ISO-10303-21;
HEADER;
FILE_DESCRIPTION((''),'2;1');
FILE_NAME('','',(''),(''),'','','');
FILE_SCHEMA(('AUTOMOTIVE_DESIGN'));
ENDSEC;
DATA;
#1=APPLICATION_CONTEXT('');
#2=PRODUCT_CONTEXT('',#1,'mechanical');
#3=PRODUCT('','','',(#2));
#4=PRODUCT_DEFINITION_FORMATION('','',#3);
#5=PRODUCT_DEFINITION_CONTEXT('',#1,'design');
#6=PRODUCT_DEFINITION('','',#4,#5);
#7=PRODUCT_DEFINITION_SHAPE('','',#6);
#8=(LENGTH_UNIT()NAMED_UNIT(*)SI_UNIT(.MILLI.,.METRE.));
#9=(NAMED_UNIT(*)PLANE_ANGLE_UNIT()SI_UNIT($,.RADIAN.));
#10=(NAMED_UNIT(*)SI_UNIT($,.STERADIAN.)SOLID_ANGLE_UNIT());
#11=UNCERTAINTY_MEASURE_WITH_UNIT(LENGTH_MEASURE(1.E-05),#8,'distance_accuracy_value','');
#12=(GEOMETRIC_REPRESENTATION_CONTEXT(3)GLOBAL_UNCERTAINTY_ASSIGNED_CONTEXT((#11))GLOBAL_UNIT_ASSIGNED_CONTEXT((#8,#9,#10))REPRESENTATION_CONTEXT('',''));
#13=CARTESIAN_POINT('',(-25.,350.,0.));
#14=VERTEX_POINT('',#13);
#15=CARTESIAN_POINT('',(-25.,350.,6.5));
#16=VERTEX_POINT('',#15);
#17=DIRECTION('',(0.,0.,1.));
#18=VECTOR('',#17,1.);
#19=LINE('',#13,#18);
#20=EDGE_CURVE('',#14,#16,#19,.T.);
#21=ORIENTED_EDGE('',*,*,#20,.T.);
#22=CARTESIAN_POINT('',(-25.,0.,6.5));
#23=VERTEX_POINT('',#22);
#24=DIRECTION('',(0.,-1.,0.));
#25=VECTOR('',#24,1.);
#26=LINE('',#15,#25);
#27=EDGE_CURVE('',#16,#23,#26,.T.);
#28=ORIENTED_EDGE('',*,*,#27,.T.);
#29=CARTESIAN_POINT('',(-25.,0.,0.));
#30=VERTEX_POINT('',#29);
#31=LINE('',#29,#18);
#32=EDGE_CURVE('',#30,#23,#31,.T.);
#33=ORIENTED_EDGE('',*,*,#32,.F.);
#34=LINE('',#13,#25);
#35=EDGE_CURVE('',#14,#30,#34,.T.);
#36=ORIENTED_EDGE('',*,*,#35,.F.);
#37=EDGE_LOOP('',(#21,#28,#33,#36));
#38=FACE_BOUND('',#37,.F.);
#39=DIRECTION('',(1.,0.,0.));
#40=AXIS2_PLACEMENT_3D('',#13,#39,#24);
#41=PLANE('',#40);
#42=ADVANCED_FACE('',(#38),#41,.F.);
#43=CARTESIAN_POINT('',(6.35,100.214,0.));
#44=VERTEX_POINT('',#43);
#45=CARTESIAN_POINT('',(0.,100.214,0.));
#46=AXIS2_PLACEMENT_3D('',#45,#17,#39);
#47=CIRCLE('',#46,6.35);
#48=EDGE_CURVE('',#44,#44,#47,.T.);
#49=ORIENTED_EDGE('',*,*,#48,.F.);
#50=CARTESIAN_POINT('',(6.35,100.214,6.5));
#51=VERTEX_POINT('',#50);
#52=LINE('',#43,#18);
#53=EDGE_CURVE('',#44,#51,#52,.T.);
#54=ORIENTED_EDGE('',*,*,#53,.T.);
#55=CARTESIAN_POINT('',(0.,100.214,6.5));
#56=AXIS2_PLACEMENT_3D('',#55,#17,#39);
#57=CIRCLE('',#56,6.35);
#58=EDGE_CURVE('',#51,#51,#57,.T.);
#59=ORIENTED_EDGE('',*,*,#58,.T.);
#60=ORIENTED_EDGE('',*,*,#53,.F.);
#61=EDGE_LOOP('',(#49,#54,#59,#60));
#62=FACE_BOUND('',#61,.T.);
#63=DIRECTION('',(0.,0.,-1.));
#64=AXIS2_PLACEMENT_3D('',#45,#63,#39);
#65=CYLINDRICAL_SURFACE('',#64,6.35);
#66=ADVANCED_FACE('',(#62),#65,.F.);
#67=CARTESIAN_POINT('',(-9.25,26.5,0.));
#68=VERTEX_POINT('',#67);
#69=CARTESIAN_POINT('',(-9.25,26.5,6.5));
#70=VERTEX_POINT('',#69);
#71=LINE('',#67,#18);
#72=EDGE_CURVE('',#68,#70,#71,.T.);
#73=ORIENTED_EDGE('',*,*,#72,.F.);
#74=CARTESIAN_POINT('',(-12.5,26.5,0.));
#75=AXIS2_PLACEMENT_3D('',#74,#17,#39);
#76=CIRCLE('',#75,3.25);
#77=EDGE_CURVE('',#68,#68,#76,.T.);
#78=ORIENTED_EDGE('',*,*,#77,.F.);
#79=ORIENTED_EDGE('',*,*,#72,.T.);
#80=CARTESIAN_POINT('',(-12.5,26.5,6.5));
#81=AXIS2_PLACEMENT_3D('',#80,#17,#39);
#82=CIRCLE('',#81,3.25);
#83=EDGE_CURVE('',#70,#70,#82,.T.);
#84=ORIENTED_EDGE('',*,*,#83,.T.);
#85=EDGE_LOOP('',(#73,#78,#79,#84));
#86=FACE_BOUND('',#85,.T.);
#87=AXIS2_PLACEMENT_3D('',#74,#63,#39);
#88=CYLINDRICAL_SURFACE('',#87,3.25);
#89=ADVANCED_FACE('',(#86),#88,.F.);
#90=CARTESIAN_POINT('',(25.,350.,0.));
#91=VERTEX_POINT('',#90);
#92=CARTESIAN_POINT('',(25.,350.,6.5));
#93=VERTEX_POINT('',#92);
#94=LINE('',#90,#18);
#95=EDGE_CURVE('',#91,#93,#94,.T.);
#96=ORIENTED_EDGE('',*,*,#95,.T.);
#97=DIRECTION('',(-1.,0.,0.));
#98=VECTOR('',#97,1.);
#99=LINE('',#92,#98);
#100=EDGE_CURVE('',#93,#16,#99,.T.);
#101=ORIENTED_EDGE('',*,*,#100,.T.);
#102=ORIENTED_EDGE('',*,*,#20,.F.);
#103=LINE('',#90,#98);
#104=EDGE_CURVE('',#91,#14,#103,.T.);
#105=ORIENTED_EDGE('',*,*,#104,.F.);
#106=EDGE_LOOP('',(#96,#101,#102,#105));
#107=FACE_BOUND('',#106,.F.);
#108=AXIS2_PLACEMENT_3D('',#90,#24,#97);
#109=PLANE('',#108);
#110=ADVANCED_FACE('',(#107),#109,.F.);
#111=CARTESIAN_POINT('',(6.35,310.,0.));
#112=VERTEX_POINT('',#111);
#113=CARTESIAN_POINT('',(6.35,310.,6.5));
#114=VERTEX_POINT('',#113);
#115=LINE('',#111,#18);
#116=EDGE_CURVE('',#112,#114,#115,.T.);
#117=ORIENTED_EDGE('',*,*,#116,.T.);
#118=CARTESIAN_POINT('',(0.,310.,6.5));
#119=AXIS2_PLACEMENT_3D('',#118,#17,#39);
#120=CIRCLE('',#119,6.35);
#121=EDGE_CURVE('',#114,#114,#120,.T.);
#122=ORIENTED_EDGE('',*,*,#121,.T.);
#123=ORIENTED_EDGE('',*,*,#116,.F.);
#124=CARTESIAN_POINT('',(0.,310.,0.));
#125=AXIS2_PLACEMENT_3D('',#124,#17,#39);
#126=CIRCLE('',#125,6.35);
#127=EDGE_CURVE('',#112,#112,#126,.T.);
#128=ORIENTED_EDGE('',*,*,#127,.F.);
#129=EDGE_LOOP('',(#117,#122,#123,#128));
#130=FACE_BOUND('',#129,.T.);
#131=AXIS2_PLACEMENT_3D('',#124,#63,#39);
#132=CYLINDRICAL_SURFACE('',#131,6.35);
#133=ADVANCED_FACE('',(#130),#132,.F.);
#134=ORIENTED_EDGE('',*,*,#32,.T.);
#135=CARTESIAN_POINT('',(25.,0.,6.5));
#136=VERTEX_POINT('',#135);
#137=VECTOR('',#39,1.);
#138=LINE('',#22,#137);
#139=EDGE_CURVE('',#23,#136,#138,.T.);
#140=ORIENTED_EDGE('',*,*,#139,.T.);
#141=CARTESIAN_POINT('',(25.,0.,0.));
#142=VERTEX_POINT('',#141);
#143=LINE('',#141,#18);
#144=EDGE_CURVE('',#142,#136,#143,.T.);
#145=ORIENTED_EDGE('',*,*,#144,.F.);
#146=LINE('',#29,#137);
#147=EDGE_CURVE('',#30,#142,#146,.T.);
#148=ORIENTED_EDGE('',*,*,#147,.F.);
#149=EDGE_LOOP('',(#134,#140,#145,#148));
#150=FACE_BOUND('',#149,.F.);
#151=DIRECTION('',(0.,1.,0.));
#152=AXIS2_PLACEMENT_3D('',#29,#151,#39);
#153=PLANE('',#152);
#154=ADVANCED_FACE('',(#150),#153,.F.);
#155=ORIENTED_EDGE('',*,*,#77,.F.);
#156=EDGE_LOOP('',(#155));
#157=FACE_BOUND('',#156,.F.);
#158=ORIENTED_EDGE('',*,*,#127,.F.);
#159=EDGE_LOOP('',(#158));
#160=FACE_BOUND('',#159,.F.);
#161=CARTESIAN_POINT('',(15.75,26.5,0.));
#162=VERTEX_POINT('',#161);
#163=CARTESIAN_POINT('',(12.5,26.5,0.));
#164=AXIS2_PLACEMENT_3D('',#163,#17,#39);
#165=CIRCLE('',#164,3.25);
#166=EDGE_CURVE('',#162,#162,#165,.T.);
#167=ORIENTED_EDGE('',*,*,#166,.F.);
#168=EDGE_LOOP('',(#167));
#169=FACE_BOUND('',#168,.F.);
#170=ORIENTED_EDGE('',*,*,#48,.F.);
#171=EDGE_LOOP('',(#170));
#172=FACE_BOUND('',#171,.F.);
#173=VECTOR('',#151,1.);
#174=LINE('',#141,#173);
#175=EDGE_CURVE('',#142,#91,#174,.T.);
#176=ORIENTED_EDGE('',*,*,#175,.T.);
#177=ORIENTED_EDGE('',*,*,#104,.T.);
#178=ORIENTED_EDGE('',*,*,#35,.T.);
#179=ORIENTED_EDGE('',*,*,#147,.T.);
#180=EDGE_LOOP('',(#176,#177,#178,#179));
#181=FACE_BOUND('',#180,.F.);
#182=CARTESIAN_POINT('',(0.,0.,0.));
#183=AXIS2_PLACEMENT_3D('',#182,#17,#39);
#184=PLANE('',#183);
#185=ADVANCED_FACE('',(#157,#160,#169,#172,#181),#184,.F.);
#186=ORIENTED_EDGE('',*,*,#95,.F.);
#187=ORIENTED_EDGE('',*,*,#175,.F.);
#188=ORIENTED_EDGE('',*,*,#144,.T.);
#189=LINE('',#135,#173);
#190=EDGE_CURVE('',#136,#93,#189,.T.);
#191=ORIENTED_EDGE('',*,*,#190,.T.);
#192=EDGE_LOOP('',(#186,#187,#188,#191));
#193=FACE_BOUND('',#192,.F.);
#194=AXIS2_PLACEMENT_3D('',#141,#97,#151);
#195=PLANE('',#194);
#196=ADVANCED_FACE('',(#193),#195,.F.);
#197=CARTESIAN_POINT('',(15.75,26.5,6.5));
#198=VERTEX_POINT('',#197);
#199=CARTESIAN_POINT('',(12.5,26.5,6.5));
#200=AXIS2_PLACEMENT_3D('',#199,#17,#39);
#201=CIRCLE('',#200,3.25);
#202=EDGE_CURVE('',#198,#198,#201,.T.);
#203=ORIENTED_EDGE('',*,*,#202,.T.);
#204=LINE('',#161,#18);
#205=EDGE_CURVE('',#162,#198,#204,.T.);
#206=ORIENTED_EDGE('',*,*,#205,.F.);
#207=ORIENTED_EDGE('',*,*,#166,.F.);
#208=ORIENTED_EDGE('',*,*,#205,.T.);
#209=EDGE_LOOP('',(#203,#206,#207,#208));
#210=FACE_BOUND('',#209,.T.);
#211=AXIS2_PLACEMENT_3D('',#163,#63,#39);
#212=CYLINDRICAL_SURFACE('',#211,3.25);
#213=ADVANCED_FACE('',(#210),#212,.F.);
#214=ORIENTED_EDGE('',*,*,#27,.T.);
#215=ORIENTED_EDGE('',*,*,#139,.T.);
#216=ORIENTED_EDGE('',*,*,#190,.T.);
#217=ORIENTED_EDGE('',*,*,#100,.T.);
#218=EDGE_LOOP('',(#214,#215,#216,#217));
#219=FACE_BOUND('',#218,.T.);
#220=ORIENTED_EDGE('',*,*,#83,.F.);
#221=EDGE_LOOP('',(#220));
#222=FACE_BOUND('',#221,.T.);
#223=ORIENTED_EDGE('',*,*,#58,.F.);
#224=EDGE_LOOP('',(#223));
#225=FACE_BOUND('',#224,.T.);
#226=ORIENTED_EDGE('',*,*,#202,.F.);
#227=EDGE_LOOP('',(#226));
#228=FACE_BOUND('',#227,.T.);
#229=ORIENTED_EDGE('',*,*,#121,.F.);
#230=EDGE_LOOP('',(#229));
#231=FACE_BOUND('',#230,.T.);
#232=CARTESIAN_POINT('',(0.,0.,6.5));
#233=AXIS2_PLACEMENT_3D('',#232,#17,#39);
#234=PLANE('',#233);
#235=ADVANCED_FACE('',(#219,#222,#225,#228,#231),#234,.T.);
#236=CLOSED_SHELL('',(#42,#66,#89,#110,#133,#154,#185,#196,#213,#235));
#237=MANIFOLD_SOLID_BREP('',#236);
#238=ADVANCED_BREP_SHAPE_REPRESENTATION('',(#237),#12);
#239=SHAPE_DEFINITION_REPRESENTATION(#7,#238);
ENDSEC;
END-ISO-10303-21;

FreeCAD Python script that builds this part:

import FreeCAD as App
import Part
import Sketcher
from FreeCAD import Vector


def add_polygon(sketch, points):
    """Adds a closed chain of lines whose ends are joined by coincident constraints."""
    first, n = sketch.GeometryCount, len(points)
    for a, b in zip(points, points[1:] + points[:1]):
        sketch.addGeometry(Part.LineSegment(App.Vector(*a, 0), App.Vector(*b, 0)), False)
    for i in range(n):
        sketch.addConstraint(Sketcher.Constraint("Coincident", first + i, 2, first + (i + 1) % n, 1))

doc = App.newDocument("Part")
body = doc.addObject("PartDesign::Body", "Body")

sketch1 = body.newObject("Sketcher::SketchObject", "Sketch")
sketch1.AttachmentSupport = (doc.getObject("XY_Plane"), [""])
sketch1.MapMode = "FlatFace"
add_polygon(sketch1, [(-25, 350), (-25, 0), (25, 0), (25, 350)])
sketch1.addGeometry(Part.Circle(Vector(-12.5, 26.5, 0), Vector(0, 0, 1), 3.2), False)
sketch1.addGeometry(Part.Circle(Vector(12.5, 26.5, 0), Vector(0, 0, 1), 3.2), False)
sketch1.addGeometry(Part.Circle(Vector(0, 100.2, 0), Vector(0, 0, 1), 6.3), False)
sketch1.addGeometry(Part.Circle(Vector(0, 310, 0), Vector(0, 0, 1), 6.3), False)
sketch1.addConstraint(Sketcher.Constraint("Vertical", 0))
sketch1.addConstraint(Sketcher.Constraint("Horizontal", 1))
sketch1.addConstraint(Sketcher.Constraint("Vertical", 2))
sketch1.addConstraint(Sketcher.Constraint("Horizontal", 3))
sketch1.addConstraint(Sketcher.Constraint("Equal", 4, 5))
sketch1.addConstraint(Sketcher.Constraint("Equal", 6, 7))
sketch1.addConstraint(Sketcher.Constraint("Symmetric", 0, 2, 1, 2, -1, 1))
sketch1.addConstraint(Sketcher.Constraint("Symmetric", 4, 3, 5, 3, -2))
sketch1.addConstraint(Sketcher.Constraint("PointOnObject", 6, 3, -2))
sketch1.addConstraint(Sketcher.Constraint("PointOnObject", 7, 3, -2))
sketch1.addConstraint(Sketcher.Constraint("Diameter", 4, 6.5))
sketch1.addConstraint(Sketcher.Constraint("Diameter", 6, 12.7))
sketch1.addConstraint(Sketcher.Constraint("DistanceX", 1, 1, 1, 2, 50.0))
sketch1.addConstraint(Sketcher.Constraint("DistanceY", 0, 2, 0, 1, 350.0))
sketch1.addConstraint(Sketcher.Constraint("DistanceY", -1, 1, 7, 3, 310.0))
sketch1.addConstraint(Sketcher.Constraint("DistanceX", 4, 3, 5, 3, 25.0))
sketch1.addConstraint(Sketcher.Constraint("DistanceY", -1, 1, 4, 3, 26.5))
sketch1.addConstraint(Sketcher.Constraint("DistanceY", -1, 1, 6, 3, 100.214))
pad1 = body.newObject("PartDesign::Pad", "Pad")
pad1.Profile = sketch1
pad1.Length = 6.5

doc.recompute()
